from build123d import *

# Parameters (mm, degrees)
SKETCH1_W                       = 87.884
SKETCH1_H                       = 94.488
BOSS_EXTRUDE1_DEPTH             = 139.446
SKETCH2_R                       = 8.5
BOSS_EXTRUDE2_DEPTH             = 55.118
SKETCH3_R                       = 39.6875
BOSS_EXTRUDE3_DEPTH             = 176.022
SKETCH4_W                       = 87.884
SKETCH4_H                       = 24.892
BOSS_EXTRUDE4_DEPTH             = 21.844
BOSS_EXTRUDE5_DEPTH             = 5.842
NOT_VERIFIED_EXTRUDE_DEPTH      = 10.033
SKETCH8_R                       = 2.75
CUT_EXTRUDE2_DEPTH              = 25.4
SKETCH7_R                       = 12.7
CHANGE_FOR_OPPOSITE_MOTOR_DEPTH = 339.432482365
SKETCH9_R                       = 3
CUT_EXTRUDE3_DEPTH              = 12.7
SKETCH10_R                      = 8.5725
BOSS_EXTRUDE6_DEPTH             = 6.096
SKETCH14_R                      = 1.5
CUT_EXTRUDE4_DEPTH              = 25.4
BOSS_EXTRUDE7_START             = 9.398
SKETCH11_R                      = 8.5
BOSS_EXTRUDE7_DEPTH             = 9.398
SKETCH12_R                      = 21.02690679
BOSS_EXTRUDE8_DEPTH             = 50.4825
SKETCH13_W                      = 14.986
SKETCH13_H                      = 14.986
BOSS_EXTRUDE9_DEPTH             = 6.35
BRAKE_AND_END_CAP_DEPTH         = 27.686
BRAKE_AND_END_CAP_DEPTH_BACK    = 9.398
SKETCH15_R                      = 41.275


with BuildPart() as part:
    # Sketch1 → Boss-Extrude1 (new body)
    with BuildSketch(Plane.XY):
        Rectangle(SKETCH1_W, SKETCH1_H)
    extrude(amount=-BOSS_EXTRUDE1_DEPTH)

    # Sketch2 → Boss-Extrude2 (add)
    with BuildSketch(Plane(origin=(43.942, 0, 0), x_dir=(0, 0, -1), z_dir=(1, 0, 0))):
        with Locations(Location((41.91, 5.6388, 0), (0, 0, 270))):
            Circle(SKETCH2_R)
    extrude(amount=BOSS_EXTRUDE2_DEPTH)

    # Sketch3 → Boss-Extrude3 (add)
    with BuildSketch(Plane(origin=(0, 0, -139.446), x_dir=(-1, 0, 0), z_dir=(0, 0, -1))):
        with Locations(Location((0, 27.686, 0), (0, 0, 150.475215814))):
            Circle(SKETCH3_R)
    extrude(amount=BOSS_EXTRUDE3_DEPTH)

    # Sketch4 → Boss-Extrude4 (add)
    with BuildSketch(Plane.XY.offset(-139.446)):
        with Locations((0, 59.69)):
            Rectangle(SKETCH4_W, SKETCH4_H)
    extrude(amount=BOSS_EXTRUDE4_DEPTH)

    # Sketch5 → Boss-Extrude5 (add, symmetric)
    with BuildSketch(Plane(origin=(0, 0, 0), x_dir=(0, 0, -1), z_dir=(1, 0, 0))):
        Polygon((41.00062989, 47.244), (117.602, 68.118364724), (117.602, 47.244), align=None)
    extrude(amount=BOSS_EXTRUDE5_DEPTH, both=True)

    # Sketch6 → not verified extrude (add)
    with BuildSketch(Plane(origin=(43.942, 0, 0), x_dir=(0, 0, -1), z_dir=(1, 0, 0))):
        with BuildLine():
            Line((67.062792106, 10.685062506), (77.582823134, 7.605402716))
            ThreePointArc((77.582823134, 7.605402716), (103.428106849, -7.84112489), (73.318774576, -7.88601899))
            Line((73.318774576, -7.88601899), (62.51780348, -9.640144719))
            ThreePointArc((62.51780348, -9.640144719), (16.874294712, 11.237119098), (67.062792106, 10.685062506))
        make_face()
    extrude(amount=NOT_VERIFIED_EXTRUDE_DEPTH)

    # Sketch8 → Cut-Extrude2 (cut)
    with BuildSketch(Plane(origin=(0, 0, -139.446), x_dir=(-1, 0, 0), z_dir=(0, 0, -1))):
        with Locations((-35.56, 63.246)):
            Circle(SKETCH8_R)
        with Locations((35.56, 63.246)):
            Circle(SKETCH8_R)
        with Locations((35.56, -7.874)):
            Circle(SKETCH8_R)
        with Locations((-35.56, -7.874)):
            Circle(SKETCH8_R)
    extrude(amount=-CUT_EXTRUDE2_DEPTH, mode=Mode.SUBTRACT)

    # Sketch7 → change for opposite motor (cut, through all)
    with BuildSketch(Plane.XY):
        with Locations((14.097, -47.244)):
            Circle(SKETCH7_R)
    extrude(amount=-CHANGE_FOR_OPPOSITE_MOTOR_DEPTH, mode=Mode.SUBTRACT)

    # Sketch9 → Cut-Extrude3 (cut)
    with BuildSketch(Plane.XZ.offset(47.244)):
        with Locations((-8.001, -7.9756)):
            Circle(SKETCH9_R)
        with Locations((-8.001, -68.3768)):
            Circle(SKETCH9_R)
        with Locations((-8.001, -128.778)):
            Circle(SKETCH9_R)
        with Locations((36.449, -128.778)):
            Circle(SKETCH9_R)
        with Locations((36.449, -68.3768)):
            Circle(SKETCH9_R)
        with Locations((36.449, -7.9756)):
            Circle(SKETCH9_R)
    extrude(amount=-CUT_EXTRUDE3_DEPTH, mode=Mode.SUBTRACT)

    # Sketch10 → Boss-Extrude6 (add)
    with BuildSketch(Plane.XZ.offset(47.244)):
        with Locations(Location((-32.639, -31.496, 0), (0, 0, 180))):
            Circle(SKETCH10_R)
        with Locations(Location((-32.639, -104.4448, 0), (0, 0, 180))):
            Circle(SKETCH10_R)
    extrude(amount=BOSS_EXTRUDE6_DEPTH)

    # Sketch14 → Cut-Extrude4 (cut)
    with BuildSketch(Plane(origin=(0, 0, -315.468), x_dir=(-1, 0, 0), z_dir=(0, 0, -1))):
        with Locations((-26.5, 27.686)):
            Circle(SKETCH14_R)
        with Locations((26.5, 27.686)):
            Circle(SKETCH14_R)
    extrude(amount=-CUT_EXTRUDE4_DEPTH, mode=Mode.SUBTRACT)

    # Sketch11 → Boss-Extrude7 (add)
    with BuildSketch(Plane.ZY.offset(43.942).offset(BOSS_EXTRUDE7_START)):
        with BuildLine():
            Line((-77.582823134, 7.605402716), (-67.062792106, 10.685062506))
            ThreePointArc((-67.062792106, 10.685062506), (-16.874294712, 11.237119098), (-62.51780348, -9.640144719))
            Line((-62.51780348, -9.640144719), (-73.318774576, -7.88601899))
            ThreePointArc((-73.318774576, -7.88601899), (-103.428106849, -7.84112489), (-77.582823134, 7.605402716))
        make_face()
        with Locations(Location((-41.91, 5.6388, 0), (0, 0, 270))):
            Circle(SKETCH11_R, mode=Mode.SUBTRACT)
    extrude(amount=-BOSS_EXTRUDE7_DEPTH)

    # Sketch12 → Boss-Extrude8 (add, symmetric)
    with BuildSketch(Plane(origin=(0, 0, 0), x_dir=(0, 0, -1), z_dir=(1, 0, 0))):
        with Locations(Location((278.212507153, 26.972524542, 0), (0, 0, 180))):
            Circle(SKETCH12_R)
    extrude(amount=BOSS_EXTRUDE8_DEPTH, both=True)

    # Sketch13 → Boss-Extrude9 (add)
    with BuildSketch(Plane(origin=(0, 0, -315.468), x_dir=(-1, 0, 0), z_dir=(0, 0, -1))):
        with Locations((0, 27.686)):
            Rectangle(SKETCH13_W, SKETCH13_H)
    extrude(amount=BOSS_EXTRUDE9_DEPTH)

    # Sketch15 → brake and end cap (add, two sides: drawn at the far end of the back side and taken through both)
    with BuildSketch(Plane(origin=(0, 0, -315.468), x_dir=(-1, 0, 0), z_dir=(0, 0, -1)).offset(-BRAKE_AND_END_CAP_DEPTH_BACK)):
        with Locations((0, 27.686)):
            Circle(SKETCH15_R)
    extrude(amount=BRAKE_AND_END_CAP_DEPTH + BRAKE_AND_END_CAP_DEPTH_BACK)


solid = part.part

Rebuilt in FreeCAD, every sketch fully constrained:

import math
import FreeCAD as App
import Part
import Sketcher
Q = App.Units.Quantity

doc = App.newDocument("Part")
body = doc.addObject("PartDesign::Body", "Body")

# Sketch on XY plane
sketch1 = body.newObject("Sketcher::SketchObject", "Sketch")
sketch1.AttachmentSupport = (doc.getObject("XY_Plane"), [""])
sketch1.MapMode = "FlatFace"
sketch1.addGeometry([
    Part.LineSegment(App.Vector(-44, 47, 0), App.Vector(-44, -47, 0)),
    Part.LineSegment(App.Vector(-44, -47, 0), App.Vector(44, -47, 0)),
    Part.LineSegment(App.Vector(44, -47, 0), App.Vector(44, 47, 0)),
    Part.LineSegment(App.Vector(44, 47, 0), App.Vector(-44, 47, 0)),
], False)
sketch1.addConstraint([
    Sketcher.Constraint("Coincident", 0, 2, 1, 1),
    Sketcher.Constraint("Coincident", 1, 2, 2, 1),
    Sketcher.Constraint("Coincident", 2, 2, 3, 1),
    Sketcher.Constraint("Coincident", 3, 2, 0, 1),
    Sketcher.Constraint("Vertical", 0),
    Sketcher.Constraint("Horizontal", 1),
    Sketcher.Constraint("Vertical", 2),
    Sketcher.Constraint("Horizontal", 3),
    Sketcher.Constraint("Symmetric", 0, 2, 2, 2, -1, 1),
    Sketcher.Constraint("DistanceX", 1, 1, 1, 2, Q("3.46 in")),
    Sketcher.Constraint("DistanceY", 0, 2, 0, 1, Q("3.72 in")),
])
pad1 = body.newObject("PartDesign::Pad", "Pad")
pad1.Profile = sketch1
pad1.Length = Q("5.49 in")
pad1.Reversed = True

# Sketch on YZ plane
sketch2 = body.newObject("Sketcher::SketchObject", "Sketch001")
sketch2.AttachmentSupport = (doc.getObject("YZ_Plane"), [""])
sketch2.MapMode = "FlatFace"
sketch2.AttachmentOffset = App.Placement(App.Vector(0, 0, 1.73 * 25.4), App.Rotation())
sketch2.addGeometry(Part.Circle(App.Vector(6, -42, 0), App.Vector(0, 0, 1), 8), False)
sketch2.addConstraint([
    Sketcher.Constraint("Diameter", 0, 17.0),
    Sketcher.Constraint("DistanceY", 0, 3, -1, 1, Q("1.65 in")),
    Sketcher.Constraint("DistanceX", -1, 1, 0, 3, Q("0.222 in")),
])
pad2 = body.newObject("PartDesign::Pad", "Pad001")
pad2.Profile = sketch2
pad2.Length = Q("2.17 in")

# Sketch on XY plane
sketch3 = body.newObject("Sketcher::SketchObject", "Sketch002")
sketch3.AttachmentSupport = (doc.getObject("XY_Plane"), [""])
sketch3.MapMode = "FlatFace"
sketch3.AttachmentOffset = App.Placement(App.Vector(0, 0, -5.49 * 25.4), App.Rotation())
sketch3.addGeometry(Part.Circle(App.Vector(0, 28, 0), App.Vector(0, 0, 1), 40), False)
sketch3.addConstraint([
    Sketcher.Constraint("PointOnObject", 0, 3, -2),
    Sketcher.Constraint("Diameter", 0, Q("3.125 in")),
    Sketcher.Constraint("DistanceY", -1, 1, 0, 3, Q("1.09 in")),
])
pad3 = body.newObject("PartDesign::Pad", "Pad002")
pad3.Profile = sketch3
pad3.Length = Q("6.93 in")
pad3.Reversed = True

# Sketch on XY plane
sketch4 = body.newObject("Sketcher::SketchObject", "Sketch003")
sketch4.AttachmentSupport = (doc.getObject("XY_Plane"), [""])
sketch4.MapMode = "FlatFace"
sketch4.AttachmentOffset = App.Placement(App.Vector(0, 0, -5.49 * 25.4), App.Rotation())
sketch4.addGeometry([
    Part.LineSegment(App.Vector(-44, 72, 0), App.Vector(-44, 47, 0)),
    Part.LineSegment(App.Vector(-44, 47, 0), App.Vector(44, 47, 0)),
    Part.LineSegment(App.Vector(44, 47, 0), App.Vector(44, 72, 0)),
    Part.LineSegment(App.Vector(44, 72, 0), App.Vector(-44, 72, 0)),
], False)
sketch4.addConstraint([
    Sketcher.Constraint("Coincident", 0, 2, 1, 1),
    Sketcher.Constraint("Coincident", 1, 2, 2, 1),
    Sketcher.Constraint("Coincident", 2, 2, 3, 1),
    Sketcher.Constraint("Coincident", 3, 2, 0, 1),
    Sketcher.Constraint("Vertical", 0),
    Sketcher.Constraint("Horizontal", 1),
    Sketcher.Constraint("Vertical", 2),
    Sketcher.Constraint("Horizontal", 3),
    Sketcher.Constraint("DistanceX", 1, 1, 1, 2, Q("3.46 in")),
    Sketcher.Constraint("DistanceY", 0, 2, 0, 1, Q("0.98 in")),
    Sketcher.Constraint("DistanceX", 0, 2, -1, 1, Q("1.73 in")),
    Sketcher.Constraint("DistanceY", -1, 1, 0, 2, Q("1.86 in")),
])
pad4 = body.newObject("PartDesign::Pad", "Pad003")
pad4.Profile = sketch4
pad4.Length = Q("0.86 in")

# Sketch on YZ plane
sketch5 = body.newObject("Sketcher::SketchObject", "Sketch004")
sketch5.AttachmentSupport = (doc.getObject("YZ_Plane"), [""])
sketch5.MapMode = "FlatFace"
sketch5.addGeometry([
    Part.LineSegment(App.Vector(68, -118, 0), App.Vector(47, -41, 0)),
    Part.LineSegment(App.Vector(47, -41, 0), App.Vector(47, -118, 0)),
    Part.LineSegment(App.Vector(47, -118, 0), App.Vector(68, -118, 0)),
], False)
sketch5.addConstraint([
    Sketcher.Constraint("Coincident", 0, 2, 1, 1),
    Sketcher.Constraint("Coincident", 1, 2, 2, 1),
    Sketcher.Constraint("Coincident", 2, 2, 0, 1),
    Sketcher.Constraint("Vertical", 1),
    Sketcher.Constraint("Horizontal", 2),
    Sketcher.Constraint("DistanceX", -1, 1, 0, 2, Q("1.86 in")),
    Sketcher.Constraint("DistanceY", 1, 2, -1, 1, Q("4.63 in")),
    Sketcher.Constraint("DistanceY", 1, 2, 1, 1, 76.60137),
    Sketcher.Constraint("Distance", 0, 79.394641),
])
pad5 = body.newObject("PartDesign::Pad", "Pad004")
pad5.Profile = sketch5
pad5.Length = Q("0.46 in")
pad5.Midplane = True

# Sketch on YZ plane
sketch6 = body.newObject("Sketcher::SketchObject", "Sketch005")
sketch6.AttachmentSupport = (doc.getObject("YZ_Plane"), [""])
sketch6.MapMode = "FlatFace"
sketch6.AttachmentOffset = App.Placement(App.Vector(0, 0, 1.73 * 25.4), App.Rotation())
sketch6.addGeometry([
    Part.LineSegment(App.Vector(8, -78, 0), App.Vector(11, -67, 0)),
    Part.ArcOfCircle(Part.Circle(App.Vector(6, -42, 0), App.Vector(0, 0, 1), 26), math.radians(-79), math.radians(233)),
    Part.LineSegment(App.Vector(-10, -63, 0), App.Vector(-8, -73, 0)),
    Part.ArcOfCircle(Part.Circle(App.Vector(-4, -88, 0), App.Vector(0, 0, 1), 16), math.radians(106), math.radians(404)),
], False)
sketch6.addConstraint([
    Sketcher.Constraint("Coincident", 0, 2, 1, 1),
    Sketcher.Constraint("Coincident", 1, 2, 2, 1),
    Sketcher.Constraint("Coincident", 2, 2, 3, 1),
    Sketcher.Constraint("Coincident", 3, 2, 0, 1),
    Sketcher.Constraint("Radius", 1, Q("1.01 in")),
    Sketcher.Constraint("Radius", 3, Q("0.615 in")),
    Sketcher.Constraint("DistanceY", 1, 3, -1, 1, Q("1.65 in")),
    Sketcher.Constraint("DistanceX", -1, 1, 1, 3, Q("0.222 in")),
    Sketcher.Constraint("Distance", 0, 10.96154),
    Sketcher.Constraint("DistanceX", 2, 2, -1, 1, 7.886019),
    Sketcher.Constraint("DistanceY", 0, 2, 1, 2, 4.544989),
    Sketcher.Constraint("DistanceX", 1, 2, 3, 3, 5.944561),
    Sketcher.Constraint("DistanceY", 2, 2, 1, 2, 10.800971),
    Sketcher.Constraint("DistanceY", 3, 3, 2, 2, 15.048452),
])
pad6 = body.newObject("PartDesign::Pad", "Pad005")
pad6.Profile = sketch6
pad6.Length = Q("0.395 in")

# Sketch on XY plane
sketch7 = body.newObject("Sketcher::SketchObject", "Sketch006")
sketch7.AttachmentSupport = (doc.getObject("XY_Plane"), [""])
sketch7.MapMode = "FlatFace"
sketch7.AttachmentOffset = App.Placement(App.Vector(0, 0, -5.49 * 25.4), App.Rotation())
sketch7.addGeometry([
    Part.Circle(App.Vector(35.6, 63.2, 0), App.Vector(0, 0, 1), 2.8),
    Part.Circle(App.Vector(-35.6, 63.2, 0), App.Vector(0, 0, 1), 2.8),
    Part.Circle(App.Vector(-35.6, -7.9, 0), App.Vector(0, 0, 1), 2.8),
    Part.Circle(App.Vector(35.6, -7.9, 0), App.Vector(0, 0, 1), 2.8),
], False)
sketch7.addConstraint([
    Sketcher.Constraint("Equal", 0, 1),
    Sketcher.Constraint("Equal", 1, 2),
    Sketcher.Constraint("Equal", 2, 3),
    Sketcher.Constraint("Symmetric", 0, 3, 1, 3, -2),
    Sketcher.Constraint("Symmetric", 2, 3, 3, 3, -2),
    Sketcher.Constraint("Vertical", 1, 3, 2, 3),
    Sketcher.Constraint("DistanceX", -1, 1, 0, 3, Q("1.4 in")),
    Sketcher.Constraint("DistanceY", 2, 3, 1, 3, Q("2.8 in")),
    Sketcher.Constraint("Diameter", 0, 5.5),
    Sketcher.Constraint("DistanceY", -1, 1, 0, 3, Q("2.49 in")),
])
pocket1 = body.newObject("PartDesign::Pocket", "Pocket")
pocket1.Profile = sketch7
pocket1.Length = Q("1 in")
pocket1.Reversed = True

# Sketch on XY plane
sketch8 = body.newObject("Sketcher::SketchObject", "Sketch007")
sketch8.AttachmentSupport = (doc.getObject("XY_Plane"), [""])
sketch8.MapMode = "FlatFace"
sketch8.addGeometry(Part.Circle(App.Vector(14, -47, 0), App.Vector(0, 0, 1), 13), False)
sketch8.addConstraint([
    Sketcher.Constraint("Diameter", 0, Q("1 in")),
    Sketcher.Constraint("DistanceY", 0, 3, -1, 1, Q("1.86 in")),
    Sketcher.Constraint("DistanceX", -1, 1, 0, 3, Q("0.555 in")),
])
pocket2 = body.newObject("PartDesign::Pocket", "Pocket001")
pocket2.Profile = sketch8
pocket2.Type = "ThroughAll"

# Sketch on XZ plane
sketch9 = body.newObject("Sketcher::SketchObject", "Sketch008")
sketch9.AttachmentSupport = (doc.getObject("XZ_Plane"), [""])
sketch9.MapMode = "FlatFace"
sketch9.AttachmentOffset = App.Placement(App.Vector(0, 0, 1.86 * 25.4), App.Rotation())
sketch9.addGeometry([
    Part.Circle(App.Vector(-8, -8, 0), App.Vector(0, 0, 1), 3),  # 0
    Part.Circle(App.Vector(-8, -68.4, 0), App.Vector(0, 0, 1), 3),  # 1
    Part.Circle(App.Vector(-8, -128.8, 0), App.Vector(0, 0, 1), 3),  # 2
    Part.Circle(App.Vector(36.4, -128.8, 0), App.Vector(0, 0, 1), 3),  # 3
    Part.Circle(App.Vector(36.4, -68.4, 0), App.Vector(0, 0, 1), 3),  # 4
    Part.Circle(App.Vector(36.4, -8, 0), App.Vector(0, 0, 1), 3),  # 5
], False)
sketch9.addConstraint([
    Sketcher.Constraint("Equal", 0, 1),
    Sketcher.Constraint("Equal", 1, 2),
    Sketcher.Constraint("Equal", 2, 3),
    Sketcher.Constraint("Equal", 3, 4),
    Sketcher.Constraint("Equal", 4, 5),
    Sketcher.Constraint("Horizontal", 2, 3, 3, 3),
    Sketcher.Constraint("Horizontal", 1, 3, 4, 3),
    Sketcher.Constraint("Horizontal", 0, 3, 5, 3),
    Sketcher.Constraint("Vertical", 0, 3, 1, 3),
    Sketcher.Constraint("Vertical", 1, 3, 2, 3),
    Sketcher.Constraint("Vertical", 3, 3, 4, 3),
    Sketcher.Constraint("Vertical", 4, 3, 5, 3),
    Sketcher.Constraint("Diameter", 0, 6.0),
    Sketcher.Constraint("DistanceY", 2, 3, -1, 1, Q("5.07 in")),
    Sketcher.Constraint("DistanceX", 2, 3, 3, 3, Q("1.75 in")),
    Sketcher.Constraint("DistanceX", 0, 3, -1, 1, Q("0.315 in")),
    Sketcher.Constraint("DistanceY", 0, 3, -1, 1, Q("0.314 in")),
    Sketcher.Constraint("DistanceY", 1, 3, -1, 1, Q("2.692 in")),
])
pocket3 = body.newObject("PartDesign::Pocket", "Pocket002")
pocket3.Profile = sketch9
pocket3.Length = Q("0.5 in")

# Sketch on XZ plane
sketch10 = body.newObject("Sketcher::SketchObject", "Sketch009")
sketch10.AttachmentSupport = (doc.getObject("XZ_Plane"), [""])
sketch10.MapMode = "FlatFace"
sketch10.AttachmentOffset = App.Placement(App.Vector(0, 0, 1.86 * 25.4), App.Rotation())
sketch10.addGeometry([
    Part.Circle(App.Vector(-33, -31, 0), App.Vector(0, 0, 1), 9),
    Part.Circle(App.Vector(-33, -104, 0), App.Vector(0, 0, 1), 9),
], False)
sketch10.addConstraint([
    Sketcher.Constraint("Equal", 0, 1),
    Sketcher.Constraint("Vertical", 0, 3, 1, 3),
    Sketcher.Constraint("Diameter", 0, Q("0.675 in")),
    Sketcher.Constraint("DistanceY", 0, 3, -1, 1, Q("1.24 in")),
    Sketcher.Constraint("DistanceX", 0, 3, -1, 1, Q("1.285 in")),
    Sketcher.Constraint("DistanceY", 1, 3, -1, 1, Q("4.112 in")),
])
pad7 = body.newObject("PartDesign::Pad", "Pad006")
pad7.Profile = sketch10
pad7.Length = Q("0.24 in")

# Sketch on XY plane
sketch11 = body.newObject("Sketcher::SketchObject", "Sketch010")
sketch11.AttachmentSupport = (doc.getObject("XY_Plane"), [""])
sketch11.MapMode = "FlatFace"
sketch11.AttachmentOffset = App.Placement(App.Vector(0, 0, -12.42 * 25.4), App.Rotation())
sketch11.addGeometry([
    Part.Circle(App.Vector(26.5, 27.7, 0), App.Vector(0, 0, 1), 1.5),
    Part.Circle(App.Vector(-26.5, 27.7, 0), App.Vector(0, 0, 1), 1.5),
], False)
sketch11.addConstraint([
    Sketcher.Constraint("Equal", 0, 1),
    Sketcher.Constraint("Symmetric", 0, 3, 1, 3, -2),
    Sketcher.Constraint("Diameter", 0, 3.0),
    Sketcher.Constraint("DistanceY", -1, 1, 0, 3, Q("1.09 in")),
    Sketcher.Constraint("DistanceX", -1, 1, 0, 3, 26.5),
])
pocket4 = body.newObject("PartDesign::Pocket", "Pocket003")
pocket4.Profile = sketch11
pocket4.Length = Q("1 in")
pocket4.Reversed = True

# Sketch on YZ plane
sketch12 = body.newObject("Sketcher::SketchObject", "Sketch011")
sketch12.AttachmentSupport = (doc.getObject("YZ_Plane"), [""])
sketch12.MapMode = "FlatFace"
sketch12.AttachmentOffset = App.Placement(App.Vector(0, 0, -2.1 * 25.4), App.Rotation())
sketch12.addGeometry([
    Part.LineSegment(App.Vector(11, -67, 0), App.Vector(8, -78, 0)),  # 0
    Part.ArcOfCircle(Part.Circle(App.Vector(-4, -88, 0), App.Vector(0, 0, 1), 16), math.radians(106), math.radians(404)),  # 1
    Part.LineSegment(App.Vector(-8, -73, 0), App.Vector(-10, -63, 0)),  # 2
    Part.ArcOfCircle(Part.Circle(App.Vector(6, -42, 0), App.Vector(0, 0, 1), 26), math.radians(-79), math.radians(233)),  # 3
    Part.Circle(App.Vector(6, -42, 0), App.Vector(0, 0, 1), 8),  # 4
], False)
sketch12.addConstraint([
    Sketcher.Constraint("Coincident", 0, 2, 1, 2),
    Sketcher.Constraint("Coincident", 1, 1, 2, 1),
    Sketcher.Constraint("Coincident", 2, 2, 3, 2),
    Sketcher.Constraint("Coincident", 3, 1, 0, 1),
    Sketcher.Constraint("Coincident", 4, 3, 3, 3),
    Sketcher.Constraint("Radius", 3, Q("1.01 in")),
    Sketcher.Constraint("Radius", 1, Q("0.615 in")),
    Sketcher.Constraint("Diameter", 4, 17.0),
    Sketcher.Constraint("DistanceY", 3, 3, -1, 1, Q("1.65 in")),
    Sketcher.Constraint("DistanceX", -1, 1, 3, 3, Q("0.222 in")),
    Sketcher.Constraint("Distance", 0, 10.96154),
    Sketcher.Constraint("DistanceX", 1, 1, -1, 1, 7.886019),
    Sketcher.Constraint("DistanceY", 1, 3, 1, 1, 15.048452),
    Sketcher.Constraint("DistanceX", 1, 1, 0, 2, 15.491422),
    Sketcher.Constraint("DistanceY", 1, 1, 2, 2, 10.800971),
    Sketcher.Constraint("DistanceX", 2, 2, 1, 3, 5.944561),
])
pad8 = body.newObject("PartDesign::Pad", "Pad007")
pad8.Profile = sketch12
pad8.Length = Q("0.37 in")

# Sketch on YZ plane
sketch13 = body.newObject("Sketcher::SketchObject", "Sketch012")
sketch13.AttachmentSupport = (doc.getObject("YZ_Plane"), [""])
sketch13.MapMode = "FlatFace"
sketch13.addGeometry(Part.Circle(App.Vector(27, -278, 0), App.Vector(0, 0, 1), 21), False)
sketch13.addConstraint([
    Sketcher.Constraint("Diameter", 0, 42.053814),
    Sketcher.Constraint("DistanceX", -1, 1, 0, 3, 26.972525),
    Sketcher.Constraint("DistanceY", 0, 3, -1, 1, 278.212507),
])
pad9 = body.newObject("PartDesign::Pad", "Pad008")
pad9.Profile = sketch13
pad9.Length = Q("3.975 in")
pad9.Midplane = True

# Sketch on XY plane
sketch14 = body.newObject("Sketcher::SketchObject", "Sketch013")
sketch14.AttachmentSupport = (doc.getObject("XY_Plane"), [""])
sketch14.MapMode = "FlatFace"
sketch14.AttachmentOffset = App.Placement(App.Vector(0, 0, -12.42 * 25.4), App.Rotation())
sketch14.addGeometry([
    Part.LineSegment(App.Vector(7, 35, 0), App.Vector(7, 20, 0)),
    Part.LineSegment(App.Vector(7, 20, 0), App.Vector(-7, 20, 0)),
    Part.LineSegment(App.Vector(-7, 20, 0), App.Vector(-7, 35, 0)),
    Part.LineSegment(App.Vector(-7, 35, 0), App.Vector(7, 35, 0)),
], False)
sketch14.addConstraint([
    Sketcher.Constraint("Coincident", 0, 2, 1, 1),
    Sketcher.Constraint("Coincident", 1, 2, 2, 1),
    Sketcher.Constraint("Coincident", 2, 2, 3, 1),
    Sketcher.Constraint("Coincident", 3, 2, 0, 1),
    Sketcher.Constraint("Vertical", 0),
    Sketcher.Constraint("Horizontal", 1),
    Sketcher.Constraint("Vertical", 2),
    Sketcher.Constraint("Horizontal", 3),
    Sketcher.Constraint("Equal", 3, 0),
    Sketcher.Constraint("DistanceX", 1, 2, 1, 1, Q("0.59 in")),
    Sketcher.Constraint("DistanceX", -1, 1, 0, 2, Q("0.295 in")),
    Sketcher.Constraint("DistanceY", -1, 1, 0, 2, Q("0.795 in")),
])
pad10 = body.newObject("PartDesign::Pad", "Pad009")
pad10.Profile = sketch14
pad10.Length = Q("0.25 in")
pad10.Reversed = True

# Sketch on XY plane
sketch15 = body.newObject("Sketcher::SketchObject", "Sketch014")
sketch15.AttachmentSupport = (doc.getObject("XY_Plane"), [""])
sketch15.MapMode = "FlatFace"
sketch15.AttachmentOffset = App.Placement(App.Vector(0, 0, -12.42 * 25.4), App.Rotation())
sketch15.addGeometry(Part.Circle(App.Vector(0, 28, 0), App.Vector(0, 0, 1), 41), False)
sketch15.addConstraint([
    Sketcher.Constraint("PointOnObject", 0, 3, -2),
    Sketcher.Constraint("Diameter", 0, Q("3.25 in")),
    Sketcher.Constraint("DistanceY", -1, 1, 0, 3, Q("1.09 in")),
])
pad11 = body.newObject("PartDesign::Pad", "Pad010")
pad11.Profile = sketch15
pad11.Type = "TwoLengths"
pad11.Length = Q("1.09 in")
pad11.Length2 = Q("0.37 in")
pad11.Reversed = True

doc.recompute()
